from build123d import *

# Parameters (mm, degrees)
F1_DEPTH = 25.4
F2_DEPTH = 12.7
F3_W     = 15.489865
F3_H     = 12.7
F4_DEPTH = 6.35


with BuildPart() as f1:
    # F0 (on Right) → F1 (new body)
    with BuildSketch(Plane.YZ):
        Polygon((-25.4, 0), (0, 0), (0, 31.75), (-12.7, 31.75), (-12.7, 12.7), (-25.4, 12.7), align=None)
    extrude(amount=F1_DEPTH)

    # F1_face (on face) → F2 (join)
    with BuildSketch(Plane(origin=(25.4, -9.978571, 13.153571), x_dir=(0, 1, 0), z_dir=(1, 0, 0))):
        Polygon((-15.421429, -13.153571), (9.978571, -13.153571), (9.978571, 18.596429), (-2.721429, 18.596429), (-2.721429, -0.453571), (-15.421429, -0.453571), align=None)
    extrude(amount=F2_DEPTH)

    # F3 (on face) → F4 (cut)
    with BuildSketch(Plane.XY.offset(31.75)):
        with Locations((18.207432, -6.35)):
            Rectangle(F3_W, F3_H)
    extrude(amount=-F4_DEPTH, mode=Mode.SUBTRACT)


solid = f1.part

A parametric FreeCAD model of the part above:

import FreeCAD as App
import Part
import Sketcher
Q = App.Units.Quantity


def add_polygon(sketch, points):
    """Adds a closed chain of lines whose ends are joined by coincident constraints."""
    first, n = sketch.GeometryCount, len(points)
    for a, b in zip(points, points[1:] + points[:1]):
        sketch.addGeometry(Part.LineSegment(App.Vector(*a, 0), App.Vector(*b, 0)), False)
    for i in range(n):
        sketch.addConstraint(Sketcher.Constraint("Coincident", first + i, 2, first + (i + 1) % n, 1))

doc = App.newDocument("Part")
params = doc.addObject("Spreadsheet::Sheet", "Params")
for row, (alias, value) in enumerate([
    ("sketch1_width", "1 in"),
    ("sketch1_height", "1.25 in"),
    ("pad1_length", "1 in"),
    ("sketch2_width", "1 in"),
    ("sketch2_height", "1.25 in"),
    ("pad2_length", "0.5 in"),
    ("sketch3_height", "0.5 in"),
    ("pocket1_length", "0.25 in"),
], start=1):
    params.set(f"A{row}", alias)
    params.set(f"B{row}", "=" + value)
    params.setAlias(f"B{row}", alias)

body = doc.addObject("PartDesign::Body", "Body")

# Sketch on YZ plane
sketch1 = body.newObject("Sketcher::SketchObject", "Sketch")
sketch1.AttachmentSupport = (doc.getObject("YZ_Plane"), [""])
sketch1.MapMode = "FlatFace"
add_polygon(sketch1, [(-25, 0), (0, 0), (0, 32), (-13, 32), (-13, 13), (-25, 13)])  # lines 0-5
sketch1.addConstraint([
    Sketcher.Constraint("Horizontal", 0),
    Sketcher.Constraint("Vertical", 1),
    Sketcher.Constraint("Horizontal", 2),
    Sketcher.Constraint("Vertical", 3),
    Sketcher.Constraint("Horizontal", 4),
    Sketcher.Constraint("Vertical", 5),
    Sketcher.Constraint("Coincident", 0, 2, -1, 1),
    Sketcher.Constraint("Equal", 2, 4),
    Sketcher.Constraint("Equal", 4, 5),
    Sketcher.Constraint("DistanceX", 0, 1, 0, 2, Q("1 in")),
    Sketcher.Constraint("DistanceY", 1, 1, 1, 2, Q("1.25 in")),
])
sketch1.setExpression("Constraints[15]", "Params.sketch1_width")
sketch1.setExpression("Constraints[16]", "Params.sketch1_height")
pad1 = body.newObject("PartDesign::Pad", "Pad")
pad1.Profile = sketch1
pad1.setExpression("Length", "Params.pad1_length")

# Sketch on YZ plane
sketch2 = body.newObject("Sketcher::SketchObject", "Sketch001")
sketch2.AttachmentSupport = (doc.getObject("YZ_Plane"), [""])
sketch2.MapMode = "FlatFace"
sketch2.AttachmentOffset = App.Placement(App.Vector(0, 0, 1 * 25.4), App.Rotation())
add_polygon(sketch2, [(-25, 0), (0, 0), (0, 32), (-13, 32), (-13, 13), (-25, 13)])  # lines 0-5
sketch2.addConstraint([
    Sketcher.Constraint("Horizontal", 0),
    Sketcher.Constraint("Vertical", 1),
    Sketcher.Constraint("Horizontal", 2),
    Sketcher.Constraint("Vertical", 3),
    Sketcher.Constraint("Horizontal", 4),
    Sketcher.Constraint("Vertical", 5),
    Sketcher.Constraint("Coincident", 0, 2, -1, 1),
    Sketcher.Constraint("Equal", 2, 4),
    Sketcher.Constraint("Equal", 4, 5),
    Sketcher.Constraint("DistanceX", 0, 1, 0, 2, Q("1 in")),
    Sketcher.Constraint("DistanceY", 1, 1, 1, 2, Q("1.25 in")),
])
sketch2.setExpression("Constraints[15]", "Params.sketch2_width")
sketch2.setExpression("Constraints[16]", "Params.sketch2_height")
pad2 = body.newObject("PartDesign::Pad", "Pad001")
pad2.Profile = sketch2
pad2.setExpression("Length", "Params.pad2_length")

# Sketch on XY plane
sketch3 = body.newObject("Sketcher::SketchObject", "Sketch002")
sketch3.AttachmentSupport = (doc.getObject("XY_Plane"), [""])
sketch3.MapMode = "FlatFace"
sketch3.AttachmentOffset = App.Placement(App.Vector(0, 0, 1.25 * 25.4), App.Rotation())
add_polygon(sketch3, [(10, 0), (10, -13), (26, -13), (26, 0)])  # lines 0-3
sketch3.addConstraint([
    Sketcher.Constraint("Vertical", 0),
    Sketcher.Constraint("Horizontal", 1),
    Sketcher.Constraint("Vertical", 2),
    Sketcher.Constraint("Horizontal", 3),
    Sketcher.Constraint("PointOnObject", 2, 2, -1),
    Sketcher.Constraint("DistanceY", 0, 2, 0, 1, Q("0.5 in")),
    Sketcher.Constraint("DistanceX", -1, 1, 0, 2, 10.462499),
    Sketcher.Constraint("DistanceX", 1, 1, 1, 2, 15.489865),
])
sketch3.setExpression("Constraints[9]", "Params.sketch3_height")
pocket1 = body.newObject("PartDesign::Pocket", "Pocket")
pocket1.Profile = sketch3
pocket1.setExpression("Length", "Params.pocket1_length")

doc.recompute()
